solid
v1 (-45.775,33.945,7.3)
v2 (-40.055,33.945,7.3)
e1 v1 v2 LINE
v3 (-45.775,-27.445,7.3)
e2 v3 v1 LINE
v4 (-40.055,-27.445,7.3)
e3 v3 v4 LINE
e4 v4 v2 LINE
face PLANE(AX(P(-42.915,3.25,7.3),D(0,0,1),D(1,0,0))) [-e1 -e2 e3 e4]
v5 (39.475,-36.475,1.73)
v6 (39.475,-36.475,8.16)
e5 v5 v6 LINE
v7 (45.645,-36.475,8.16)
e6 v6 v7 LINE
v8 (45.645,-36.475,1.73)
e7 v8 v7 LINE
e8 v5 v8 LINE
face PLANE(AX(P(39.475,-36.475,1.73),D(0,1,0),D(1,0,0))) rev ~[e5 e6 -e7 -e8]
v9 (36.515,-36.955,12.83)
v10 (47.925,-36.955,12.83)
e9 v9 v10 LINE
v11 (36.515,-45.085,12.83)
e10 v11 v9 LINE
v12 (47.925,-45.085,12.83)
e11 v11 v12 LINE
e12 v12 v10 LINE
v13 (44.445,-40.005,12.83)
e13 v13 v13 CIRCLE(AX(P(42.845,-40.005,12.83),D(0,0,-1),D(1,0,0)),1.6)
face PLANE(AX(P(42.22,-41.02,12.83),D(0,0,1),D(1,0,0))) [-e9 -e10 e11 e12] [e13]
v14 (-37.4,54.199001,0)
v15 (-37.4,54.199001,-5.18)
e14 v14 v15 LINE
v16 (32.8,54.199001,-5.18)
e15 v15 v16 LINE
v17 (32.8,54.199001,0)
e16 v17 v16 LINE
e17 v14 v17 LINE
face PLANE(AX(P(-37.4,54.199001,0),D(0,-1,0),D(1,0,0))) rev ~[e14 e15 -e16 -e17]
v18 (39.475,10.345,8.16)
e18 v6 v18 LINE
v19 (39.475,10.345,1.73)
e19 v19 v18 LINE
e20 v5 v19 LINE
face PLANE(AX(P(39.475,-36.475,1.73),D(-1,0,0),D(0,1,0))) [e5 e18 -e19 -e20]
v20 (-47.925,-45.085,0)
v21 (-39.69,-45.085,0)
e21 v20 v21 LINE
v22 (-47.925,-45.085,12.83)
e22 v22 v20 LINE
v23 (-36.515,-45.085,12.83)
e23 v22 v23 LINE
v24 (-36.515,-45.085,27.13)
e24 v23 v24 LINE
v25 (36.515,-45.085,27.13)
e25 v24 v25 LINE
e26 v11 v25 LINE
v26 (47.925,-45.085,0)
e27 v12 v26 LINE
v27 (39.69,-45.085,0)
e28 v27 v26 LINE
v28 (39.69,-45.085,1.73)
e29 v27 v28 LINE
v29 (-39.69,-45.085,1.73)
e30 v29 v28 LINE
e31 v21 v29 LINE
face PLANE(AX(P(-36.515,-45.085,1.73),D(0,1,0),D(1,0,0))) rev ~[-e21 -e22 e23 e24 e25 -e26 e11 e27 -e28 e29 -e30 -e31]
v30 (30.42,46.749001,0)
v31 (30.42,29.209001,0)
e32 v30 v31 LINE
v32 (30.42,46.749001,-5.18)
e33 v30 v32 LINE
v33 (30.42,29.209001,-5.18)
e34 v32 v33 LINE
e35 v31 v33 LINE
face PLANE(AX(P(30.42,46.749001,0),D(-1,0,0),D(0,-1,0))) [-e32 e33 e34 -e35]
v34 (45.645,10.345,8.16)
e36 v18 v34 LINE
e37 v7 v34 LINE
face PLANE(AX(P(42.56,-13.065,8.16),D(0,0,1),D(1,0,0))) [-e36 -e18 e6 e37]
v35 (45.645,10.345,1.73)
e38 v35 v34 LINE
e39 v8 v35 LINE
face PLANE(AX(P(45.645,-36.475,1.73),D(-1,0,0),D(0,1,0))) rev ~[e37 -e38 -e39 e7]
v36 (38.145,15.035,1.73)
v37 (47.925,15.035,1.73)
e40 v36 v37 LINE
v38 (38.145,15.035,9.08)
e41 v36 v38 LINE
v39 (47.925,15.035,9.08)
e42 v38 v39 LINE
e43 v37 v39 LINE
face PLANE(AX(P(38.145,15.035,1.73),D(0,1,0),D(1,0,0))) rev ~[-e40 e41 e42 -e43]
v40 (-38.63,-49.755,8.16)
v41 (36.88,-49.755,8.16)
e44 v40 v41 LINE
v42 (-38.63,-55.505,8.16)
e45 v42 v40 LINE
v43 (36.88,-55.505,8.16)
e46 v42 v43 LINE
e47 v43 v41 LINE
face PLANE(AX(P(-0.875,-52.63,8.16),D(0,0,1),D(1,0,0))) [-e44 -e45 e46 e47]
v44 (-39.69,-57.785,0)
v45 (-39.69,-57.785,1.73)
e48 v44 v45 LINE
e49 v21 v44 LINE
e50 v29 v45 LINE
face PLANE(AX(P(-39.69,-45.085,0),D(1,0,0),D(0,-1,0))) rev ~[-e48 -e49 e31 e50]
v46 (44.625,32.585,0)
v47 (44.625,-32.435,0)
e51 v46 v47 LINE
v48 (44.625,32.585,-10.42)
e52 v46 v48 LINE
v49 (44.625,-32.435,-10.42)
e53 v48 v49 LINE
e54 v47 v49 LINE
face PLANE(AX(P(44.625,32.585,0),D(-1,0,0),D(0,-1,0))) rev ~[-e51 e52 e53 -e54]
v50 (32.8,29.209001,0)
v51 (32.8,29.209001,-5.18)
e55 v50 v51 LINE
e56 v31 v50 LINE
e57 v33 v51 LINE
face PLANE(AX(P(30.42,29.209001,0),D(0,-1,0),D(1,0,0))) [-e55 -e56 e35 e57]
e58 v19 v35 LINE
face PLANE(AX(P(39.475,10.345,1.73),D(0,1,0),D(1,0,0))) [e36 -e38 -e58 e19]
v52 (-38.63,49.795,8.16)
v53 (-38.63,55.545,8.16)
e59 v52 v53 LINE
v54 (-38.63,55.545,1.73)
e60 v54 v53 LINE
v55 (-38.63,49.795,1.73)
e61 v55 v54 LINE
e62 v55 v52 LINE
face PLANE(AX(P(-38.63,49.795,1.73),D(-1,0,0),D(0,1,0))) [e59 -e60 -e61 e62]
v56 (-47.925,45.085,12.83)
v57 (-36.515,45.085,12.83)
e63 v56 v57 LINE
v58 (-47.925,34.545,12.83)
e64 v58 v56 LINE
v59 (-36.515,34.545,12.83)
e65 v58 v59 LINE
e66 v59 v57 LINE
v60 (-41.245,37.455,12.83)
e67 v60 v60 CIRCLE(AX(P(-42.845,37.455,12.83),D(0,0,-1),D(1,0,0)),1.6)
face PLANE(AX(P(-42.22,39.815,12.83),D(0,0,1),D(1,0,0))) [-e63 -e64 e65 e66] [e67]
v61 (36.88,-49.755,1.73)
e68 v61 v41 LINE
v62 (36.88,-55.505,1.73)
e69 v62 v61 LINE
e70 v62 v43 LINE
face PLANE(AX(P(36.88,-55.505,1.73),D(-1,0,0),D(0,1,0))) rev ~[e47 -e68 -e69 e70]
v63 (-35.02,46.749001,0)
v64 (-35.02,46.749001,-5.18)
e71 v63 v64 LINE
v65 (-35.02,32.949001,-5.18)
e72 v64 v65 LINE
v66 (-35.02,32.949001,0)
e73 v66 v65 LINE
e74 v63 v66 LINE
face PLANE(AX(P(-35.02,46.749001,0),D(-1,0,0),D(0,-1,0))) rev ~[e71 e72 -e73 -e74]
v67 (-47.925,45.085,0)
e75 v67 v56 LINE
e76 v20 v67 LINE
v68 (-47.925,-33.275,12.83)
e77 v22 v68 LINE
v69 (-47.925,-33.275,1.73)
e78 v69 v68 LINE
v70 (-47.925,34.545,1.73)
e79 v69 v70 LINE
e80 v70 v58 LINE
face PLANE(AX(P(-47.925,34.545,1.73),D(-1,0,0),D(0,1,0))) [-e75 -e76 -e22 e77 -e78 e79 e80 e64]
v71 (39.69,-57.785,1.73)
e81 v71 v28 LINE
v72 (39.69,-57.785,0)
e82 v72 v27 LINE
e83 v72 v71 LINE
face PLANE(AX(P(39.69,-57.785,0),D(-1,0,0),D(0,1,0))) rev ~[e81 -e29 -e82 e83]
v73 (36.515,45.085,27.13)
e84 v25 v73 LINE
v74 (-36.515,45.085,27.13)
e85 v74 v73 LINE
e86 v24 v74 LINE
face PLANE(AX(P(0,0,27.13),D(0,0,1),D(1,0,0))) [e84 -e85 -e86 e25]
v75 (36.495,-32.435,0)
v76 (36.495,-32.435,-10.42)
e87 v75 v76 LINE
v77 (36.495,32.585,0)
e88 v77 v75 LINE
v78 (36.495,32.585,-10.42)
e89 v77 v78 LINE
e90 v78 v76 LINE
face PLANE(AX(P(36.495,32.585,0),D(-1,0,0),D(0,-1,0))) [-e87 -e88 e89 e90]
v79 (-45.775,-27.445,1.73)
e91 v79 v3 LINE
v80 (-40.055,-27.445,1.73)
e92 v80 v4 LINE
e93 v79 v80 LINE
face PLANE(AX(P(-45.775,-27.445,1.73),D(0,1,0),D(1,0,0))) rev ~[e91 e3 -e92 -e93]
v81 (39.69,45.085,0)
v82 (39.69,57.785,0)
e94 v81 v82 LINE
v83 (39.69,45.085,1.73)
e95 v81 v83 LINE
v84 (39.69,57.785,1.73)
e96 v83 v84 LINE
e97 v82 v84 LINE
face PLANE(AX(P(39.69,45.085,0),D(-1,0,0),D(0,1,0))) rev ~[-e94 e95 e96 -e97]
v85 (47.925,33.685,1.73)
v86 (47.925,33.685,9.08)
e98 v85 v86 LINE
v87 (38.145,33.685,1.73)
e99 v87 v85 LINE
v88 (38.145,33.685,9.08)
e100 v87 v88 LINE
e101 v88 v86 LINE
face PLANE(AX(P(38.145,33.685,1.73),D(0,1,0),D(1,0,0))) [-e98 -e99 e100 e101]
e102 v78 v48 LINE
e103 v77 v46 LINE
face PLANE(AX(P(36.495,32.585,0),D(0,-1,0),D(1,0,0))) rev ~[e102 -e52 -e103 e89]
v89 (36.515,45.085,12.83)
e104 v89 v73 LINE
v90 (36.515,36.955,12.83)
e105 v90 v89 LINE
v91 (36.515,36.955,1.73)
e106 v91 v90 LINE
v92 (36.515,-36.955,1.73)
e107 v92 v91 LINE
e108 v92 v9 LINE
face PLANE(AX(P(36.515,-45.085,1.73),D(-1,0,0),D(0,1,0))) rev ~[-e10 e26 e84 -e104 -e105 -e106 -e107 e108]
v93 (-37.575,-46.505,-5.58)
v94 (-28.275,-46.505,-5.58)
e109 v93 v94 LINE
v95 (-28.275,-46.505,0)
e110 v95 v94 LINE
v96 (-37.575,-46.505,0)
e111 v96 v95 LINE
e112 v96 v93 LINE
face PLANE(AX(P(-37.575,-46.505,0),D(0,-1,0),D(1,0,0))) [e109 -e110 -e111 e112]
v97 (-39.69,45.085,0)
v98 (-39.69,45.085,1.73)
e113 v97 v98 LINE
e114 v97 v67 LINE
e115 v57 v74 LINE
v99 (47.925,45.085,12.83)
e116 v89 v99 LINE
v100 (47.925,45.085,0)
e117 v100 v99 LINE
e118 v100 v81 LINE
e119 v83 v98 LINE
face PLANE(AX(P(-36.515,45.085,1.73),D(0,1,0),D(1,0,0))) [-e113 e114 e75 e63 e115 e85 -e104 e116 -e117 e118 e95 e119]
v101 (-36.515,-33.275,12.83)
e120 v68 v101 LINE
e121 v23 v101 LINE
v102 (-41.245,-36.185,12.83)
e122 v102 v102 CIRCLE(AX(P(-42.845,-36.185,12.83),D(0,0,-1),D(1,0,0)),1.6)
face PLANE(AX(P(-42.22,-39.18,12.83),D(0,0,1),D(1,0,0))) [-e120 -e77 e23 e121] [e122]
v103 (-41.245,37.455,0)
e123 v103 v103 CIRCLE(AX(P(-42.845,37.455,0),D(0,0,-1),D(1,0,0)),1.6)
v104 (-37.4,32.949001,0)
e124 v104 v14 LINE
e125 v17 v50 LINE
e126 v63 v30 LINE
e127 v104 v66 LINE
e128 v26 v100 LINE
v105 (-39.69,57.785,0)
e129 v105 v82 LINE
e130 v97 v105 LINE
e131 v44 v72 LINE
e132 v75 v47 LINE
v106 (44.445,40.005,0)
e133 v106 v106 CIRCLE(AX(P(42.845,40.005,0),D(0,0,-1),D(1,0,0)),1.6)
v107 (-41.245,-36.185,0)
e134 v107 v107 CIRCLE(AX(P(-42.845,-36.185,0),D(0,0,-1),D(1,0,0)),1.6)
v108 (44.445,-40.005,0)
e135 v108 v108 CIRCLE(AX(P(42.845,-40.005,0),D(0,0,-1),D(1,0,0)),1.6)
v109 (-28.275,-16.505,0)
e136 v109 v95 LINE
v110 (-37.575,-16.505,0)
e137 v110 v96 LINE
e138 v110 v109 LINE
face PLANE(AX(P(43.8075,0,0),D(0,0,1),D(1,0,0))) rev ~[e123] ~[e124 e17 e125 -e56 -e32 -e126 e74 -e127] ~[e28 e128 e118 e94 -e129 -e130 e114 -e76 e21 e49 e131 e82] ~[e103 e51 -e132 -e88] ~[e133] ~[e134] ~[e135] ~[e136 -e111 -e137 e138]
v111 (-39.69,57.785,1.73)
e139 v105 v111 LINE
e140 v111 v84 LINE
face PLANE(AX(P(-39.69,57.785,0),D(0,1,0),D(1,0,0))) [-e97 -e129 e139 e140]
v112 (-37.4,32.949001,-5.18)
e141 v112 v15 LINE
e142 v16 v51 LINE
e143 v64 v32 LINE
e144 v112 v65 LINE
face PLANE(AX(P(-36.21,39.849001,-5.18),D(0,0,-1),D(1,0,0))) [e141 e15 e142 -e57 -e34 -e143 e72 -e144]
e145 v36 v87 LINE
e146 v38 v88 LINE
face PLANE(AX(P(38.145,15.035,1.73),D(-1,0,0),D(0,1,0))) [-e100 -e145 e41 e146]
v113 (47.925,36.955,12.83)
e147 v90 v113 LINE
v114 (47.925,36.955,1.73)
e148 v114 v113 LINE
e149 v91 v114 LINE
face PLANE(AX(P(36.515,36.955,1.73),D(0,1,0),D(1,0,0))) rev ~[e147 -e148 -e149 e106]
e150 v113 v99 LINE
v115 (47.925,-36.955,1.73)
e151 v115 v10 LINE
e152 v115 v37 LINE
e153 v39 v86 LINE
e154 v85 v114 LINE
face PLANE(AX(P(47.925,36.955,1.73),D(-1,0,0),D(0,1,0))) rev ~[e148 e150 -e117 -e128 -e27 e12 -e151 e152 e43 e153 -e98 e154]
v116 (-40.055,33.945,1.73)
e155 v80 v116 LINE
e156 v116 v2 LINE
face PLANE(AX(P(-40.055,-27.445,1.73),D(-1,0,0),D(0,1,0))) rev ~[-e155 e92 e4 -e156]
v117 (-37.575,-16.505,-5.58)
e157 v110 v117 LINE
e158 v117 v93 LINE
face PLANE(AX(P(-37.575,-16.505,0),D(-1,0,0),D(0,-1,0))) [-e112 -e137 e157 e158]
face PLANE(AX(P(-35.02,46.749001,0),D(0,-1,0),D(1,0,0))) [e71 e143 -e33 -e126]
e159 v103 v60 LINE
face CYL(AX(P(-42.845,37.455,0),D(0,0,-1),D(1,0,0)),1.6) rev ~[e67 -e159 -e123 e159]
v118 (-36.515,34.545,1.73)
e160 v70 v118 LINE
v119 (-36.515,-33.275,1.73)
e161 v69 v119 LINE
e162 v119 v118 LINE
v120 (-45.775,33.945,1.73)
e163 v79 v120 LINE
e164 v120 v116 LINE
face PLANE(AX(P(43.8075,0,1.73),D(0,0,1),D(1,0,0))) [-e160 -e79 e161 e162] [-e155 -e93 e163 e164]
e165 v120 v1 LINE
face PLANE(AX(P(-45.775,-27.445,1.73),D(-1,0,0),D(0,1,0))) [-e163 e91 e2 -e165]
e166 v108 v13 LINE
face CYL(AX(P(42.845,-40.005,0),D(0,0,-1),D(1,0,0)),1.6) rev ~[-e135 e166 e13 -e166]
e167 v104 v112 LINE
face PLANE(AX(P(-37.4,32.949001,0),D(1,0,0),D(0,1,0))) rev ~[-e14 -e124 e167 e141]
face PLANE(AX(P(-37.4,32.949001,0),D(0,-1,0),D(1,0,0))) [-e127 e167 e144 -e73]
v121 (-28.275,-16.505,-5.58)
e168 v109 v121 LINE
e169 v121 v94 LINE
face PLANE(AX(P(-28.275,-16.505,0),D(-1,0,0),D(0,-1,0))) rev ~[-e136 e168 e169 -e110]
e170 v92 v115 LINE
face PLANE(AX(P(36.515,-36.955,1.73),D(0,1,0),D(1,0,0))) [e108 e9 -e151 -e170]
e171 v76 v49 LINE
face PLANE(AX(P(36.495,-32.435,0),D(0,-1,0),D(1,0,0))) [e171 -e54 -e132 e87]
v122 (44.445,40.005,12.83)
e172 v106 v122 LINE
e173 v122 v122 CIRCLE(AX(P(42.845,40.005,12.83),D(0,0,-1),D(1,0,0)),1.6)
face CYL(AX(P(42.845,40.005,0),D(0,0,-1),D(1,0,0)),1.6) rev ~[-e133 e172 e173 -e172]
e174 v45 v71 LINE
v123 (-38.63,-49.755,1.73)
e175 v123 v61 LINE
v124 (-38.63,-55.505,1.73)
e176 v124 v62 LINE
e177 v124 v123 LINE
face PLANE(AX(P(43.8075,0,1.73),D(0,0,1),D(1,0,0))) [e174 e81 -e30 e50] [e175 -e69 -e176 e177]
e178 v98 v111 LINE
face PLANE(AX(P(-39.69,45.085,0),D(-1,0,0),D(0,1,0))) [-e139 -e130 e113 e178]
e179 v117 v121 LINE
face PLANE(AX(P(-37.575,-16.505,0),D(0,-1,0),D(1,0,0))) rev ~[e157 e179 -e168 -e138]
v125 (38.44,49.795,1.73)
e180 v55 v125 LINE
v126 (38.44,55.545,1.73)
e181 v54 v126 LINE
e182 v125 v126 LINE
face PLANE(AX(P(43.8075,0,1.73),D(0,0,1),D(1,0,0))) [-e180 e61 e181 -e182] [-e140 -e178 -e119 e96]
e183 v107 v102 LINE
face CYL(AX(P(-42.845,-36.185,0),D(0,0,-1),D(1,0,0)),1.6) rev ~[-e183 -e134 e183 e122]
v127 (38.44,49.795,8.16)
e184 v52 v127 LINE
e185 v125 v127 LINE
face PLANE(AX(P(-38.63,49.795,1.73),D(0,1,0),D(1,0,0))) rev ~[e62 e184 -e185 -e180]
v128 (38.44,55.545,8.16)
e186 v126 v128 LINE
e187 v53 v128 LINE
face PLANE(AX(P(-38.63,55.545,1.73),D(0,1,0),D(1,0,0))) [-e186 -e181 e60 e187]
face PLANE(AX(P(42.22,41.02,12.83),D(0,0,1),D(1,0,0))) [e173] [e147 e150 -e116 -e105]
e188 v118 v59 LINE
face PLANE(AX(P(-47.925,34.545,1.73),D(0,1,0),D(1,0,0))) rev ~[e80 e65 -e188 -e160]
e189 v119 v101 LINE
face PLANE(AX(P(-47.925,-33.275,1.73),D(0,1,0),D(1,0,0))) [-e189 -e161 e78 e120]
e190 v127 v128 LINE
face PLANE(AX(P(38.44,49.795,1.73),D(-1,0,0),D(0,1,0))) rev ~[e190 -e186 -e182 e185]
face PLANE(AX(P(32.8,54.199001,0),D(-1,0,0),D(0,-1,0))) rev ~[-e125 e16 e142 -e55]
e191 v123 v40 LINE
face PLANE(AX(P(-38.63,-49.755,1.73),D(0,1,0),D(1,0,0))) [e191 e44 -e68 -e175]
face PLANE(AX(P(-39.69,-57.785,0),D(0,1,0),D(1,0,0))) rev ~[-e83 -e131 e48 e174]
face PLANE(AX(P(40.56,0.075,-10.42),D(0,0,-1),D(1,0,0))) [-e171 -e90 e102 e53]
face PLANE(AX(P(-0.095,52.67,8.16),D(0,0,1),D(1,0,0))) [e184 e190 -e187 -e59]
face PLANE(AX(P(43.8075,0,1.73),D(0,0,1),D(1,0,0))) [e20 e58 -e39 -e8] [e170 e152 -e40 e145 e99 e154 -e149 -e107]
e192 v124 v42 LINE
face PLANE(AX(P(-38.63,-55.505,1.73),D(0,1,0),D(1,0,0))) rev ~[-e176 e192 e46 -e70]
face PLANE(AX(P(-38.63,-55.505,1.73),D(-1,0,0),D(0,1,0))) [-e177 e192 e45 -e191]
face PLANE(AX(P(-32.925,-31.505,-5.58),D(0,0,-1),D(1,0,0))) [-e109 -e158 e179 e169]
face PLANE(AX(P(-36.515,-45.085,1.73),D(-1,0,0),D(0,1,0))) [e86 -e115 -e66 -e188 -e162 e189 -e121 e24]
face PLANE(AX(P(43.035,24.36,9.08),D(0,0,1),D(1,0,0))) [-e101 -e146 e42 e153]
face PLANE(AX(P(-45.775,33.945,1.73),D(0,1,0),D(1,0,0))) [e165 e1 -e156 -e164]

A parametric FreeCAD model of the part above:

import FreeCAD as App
import Part
import Sketcher

V = App.Vector
Q = App.Units.Quantity

doc = App.newDocument("Part")
body = doc.addObject("PartDesign::Body", "Body")

# Sketch on XY plane
sketch1 = body.newObject("Sketcher::SketchObject", "Sketch")
sketch1.AttachmentSupport = (doc.getObject("XY_Plane"), [""])
sketch1.MapMode = "FlatFace"
sketch1.addGeometry(Part.LineSegment(V(40, -45, 0), V(48, -45, 0)), False)
sketch1.addGeometry(Part.LineSegment(V(48, -45, 0), V(48, 45, 0)), False)
sketch1.addGeometry(Part.LineSegment(V(48, 45, 0), V(40, 45, 0)), False)
sketch1.addGeometry(Part.LineSegment(V(40, 45, 0), V(40, 58, 0)), False)
sketch1.addGeometry(Part.LineSegment(V(40, 58, 0), V(-40, 58, 0)), False)
sketch1.addGeometry(Part.LineSegment(V(-40, 58, 0), V(-40, 45, 0)), False)
sketch1.addGeometry(Part.LineSegment(V(-40, 45, 0), V(-48, 45, 0)), False)
sketch1.addGeometry(Part.LineSegment(V(-48, 45, 0), V(-48, -45, 0)), False)
sketch1.addGeometry(Part.LineSegment(V(-48, -45, 0), V(-40, -45, 0)), False)
sketch1.addGeometry(Part.LineSegment(V(-40, -45, 0), V(-40, -58, 0)), False)
sketch1.addGeometry(Part.LineSegment(V(-40, -58, 0), V(40, -58, 0)), False)
sketch1.addGeometry(Part.LineSegment(V(40, -58, 0), V(40, -45, 0)), False)
sketch1.addConstraint(Sketcher.Constraint("Coincident", 0, 2, 1, 1))
sketch1.addConstraint(Sketcher.Constraint("Coincident", 1, 2, 2, 1))
sketch1.addConstraint(Sketcher.Constraint("Coincident", 2, 2, 3, 1))
sketch1.addConstraint(Sketcher.Constraint("Coincident", 3, 2, 4, 1))
sketch1.addConstraint(Sketcher.Constraint("Coincident", 4, 2, 5, 1))
sketch1.addConstraint(Sketcher.Constraint("Coincident", 5, 2, 6, 1))
sketch1.addConstraint(Sketcher.Constraint("Coincident", 6, 2, 7, 1))
sketch1.addConstraint(Sketcher.Constraint("Coincident", 7, 2, 8, 1))
sketch1.addConstraint(Sketcher.Constraint("Coincident", 8, 2, 9, 1))
sketch1.addConstraint(Sketcher.Constraint("Coincident", 9, 2, 10, 1))
sketch1.addConstraint(Sketcher.Constraint("Coincident", 10, 2, 11, 1))
sketch1.addConstraint(Sketcher.Constraint("Coincident", 11, 2, 0, 1))
sketch1.addConstraint(Sketcher.Constraint("Horizontal", 0))
sketch1.addConstraint(Sketcher.Constraint("Vertical", 1))
sketch1.addConstraint(Sketcher.Constraint("Horizontal", 2))
sketch1.addConstraint(Sketcher.Constraint("Vertical", 3))
sketch1.addConstraint(Sketcher.Constraint("Horizontal", 4))
sketch1.addConstraint(Sketcher.Constraint("Vertical", 5))
sketch1.addConstraint(Sketcher.Constraint("Horizontal", 6))
sketch1.addConstraint(Sketcher.Constraint("Vertical", 7))
sketch1.addConstraint(Sketcher.Constraint("Horizontal", 8))
sketch1.addConstraint(Sketcher.Constraint("Vertical", 9))
sketch1.addConstraint(Sketcher.Constraint("Horizontal", 10))
sketch1.addConstraint(Sketcher.Constraint("Vertical", 11))
sketch1.addConstraint(Sketcher.Constraint("Symmetric", 0, 2, 6, 2, -1, 1))
sketch1.addConstraint(Sketcher.Constraint("Symmetric", 2, 2, 8, 2, -1, 1))
sketch1.addConstraint(Sketcher.Constraint("Symmetric", 4, 2, 10, 2, -1, 1))
sketch1.addConstraint(Sketcher.Constraint("Symmetric", 2, 2, 5, 2, -2))
sketch1.addConstraint(Sketcher.Constraint("DistanceY", 3, 1, 3, 2, Q("12.7 mm")))
sketch1.addConstraint(Sketcher.Constraint("DistanceX", 4, 2, 4, 1, Q("79.38 mm")))
sketch1.addConstraint(Sketcher.Constraint("DistanceY", 1, 1, 1, 2, Q("90.17 mm")))
sketch1.addConstraint(Sketcher.Constraint("DistanceX", 0, 1, 0, 2, Q("8.235 mm")))
pad1 = body.newObject("PartDesign::Pad", "Pad")
pad1.Profile = sketch1
pad1.Length = 1.73

# Sketch on XY plane
sketch2 = body.newObject("Sketcher::SketchObject", "Sketch001")
sketch2.AttachmentSupport = (doc.getObject("XY_Plane"), [""])
sketch2.MapMode = "FlatFace"
sketch2.addGeometry(Part.LineSegment(V(36, -32, 0), V(36, 33, 0)), False)
sketch2.addGeometry(Part.LineSegment(V(36, 33, 0), V(45, 33, 0)), False)
sketch2.addGeometry(Part.LineSegment(V(45, 33, 0), V(45, -32, 0)), False)
sketch2.addGeometry(Part.LineSegment(V(45, -32, 0), V(36, -32, 0)), False)
sketch2.addConstraint(Sketcher.Constraint("Coincident", 0, 2, 1, 1))
sketch2.addConstraint(Sketcher.Constraint("Coincident", 1, 2, 2, 1))
sketch2.addConstraint(Sketcher.Constraint("Coincident", 2, 2, 3, 1))
sketch2.addConstraint(Sketcher.Constraint("Coincident", 3, 2, 0, 1))
sketch2.addConstraint(Sketcher.Constraint("Vertical", 0))
sketch2.addConstraint(Sketcher.Constraint("Horizontal", 1))
sketch2.addConstraint(Sketcher.Constraint("Vertical", 2))
sketch2.addConstraint(Sketcher.Constraint("Horizontal", 3))
sketch2.addConstraint(Sketcher.Constraint("DistanceX", 1, 1, 1, 2, Q("8.13 mm")))
sketch2.addConstraint(Sketcher.Constraint("DistanceY", 0, 1, 0, 2, Q("65.02 mm")))
sketch2.addConstraint(Sketcher.Constraint("DistanceX", -1, 1, 0, 2, Q("36.495 mm")))
sketch2.addConstraint(Sketcher.Constraint("DistanceY", -1, 1, 0, 2, Q("32.585 mm")))
pad2 = body.newObject("PartDesign::Pad", "Pad001")
pad2.Profile = sketch2
pad2.Length = 10.42
pad2.Reversed = True

# Sketch on XY plane
sketch3 = body.newObject("Sketcher::SketchObject", "Sketch002")
sketch3.AttachmentSupport = (doc.getObject("XY_Plane"), [""])
sketch3.MapMode = "FlatFace"
sketch3.addGeometry(Part.LineSegment(V(-37.4, 32.9, 0), V(-37.4, 54.2, 0)), False)
sketch3.addGeometry(Part.LineSegment(V(-37.4, 54.2, 0), V(32.8, 54.2, 0)), False)
sketch3.addGeometry(Part.LineSegment(V(32.8, 54.2, 0), V(32.8, 29.2, 0)), False)
sketch3.addGeometry(Part.LineSegment(V(32.8, 29.2, 0), V(30.4, 29.2, 0)), False)
sketch3.addGeometry(Part.LineSegment(V(30.4, 29.2, 0), V(30.4, 46.7, 0)), False)
sketch3.addGeometry(Part.LineSegment(V(30.4, 46.7, 0), V(-35, 46.7, 0)), False)
sketch3.addGeometry(Part.LineSegment(V(-35, 46.7, 0), V(-35, 32.9, 0)), False)
sketch3.addGeometry(Part.LineSegment(V(-35, 32.9, 0), V(-37.4, 32.9, 0)), False)
sketch3.addConstraint(Sketcher.Constraint("Coincident", 0, 2, 1, 1))
sketch3.addConstraint(Sketcher.Constraint("Coincident", 1, 2, 2, 1))
sketch3.addConstraint(Sketcher.Constraint("Coincident", 2, 2, 3, 1))
sketch3.addConstraint(Sketcher.Constraint("Coincident", 3, 2, 4, 1))
sketch3.addConstraint(Sketcher.Constraint("Coincident", 4, 2, 5, 1))
sketch3.addConstraint(Sketcher.Constraint("Coincident", 5, 2, 6, 1))
sketch3.addConstraint(Sketcher.Constraint("Coincident", 6, 2, 7, 1))
sketch3.addConstraint(Sketcher.Constraint("Coincident", 7, 2, 0, 1))
sketch3.addConstraint(Sketcher.Constraint("Vertical", 0))
sketch3.addConstraint(Sketcher.Constraint("Horizontal", 1))
sketch3.addConstraint(Sketcher.Constraint("Vertical", 2))
sketch3.addConstraint(Sketcher.Constraint("Horizontal", 3))
sketch3.addConstraint(Sketcher.Constraint("Vertical", 4))
sketch3.addConstraint(Sketcher.Constraint("Horizontal", 5))
sketch3.addConstraint(Sketcher.Constraint("Vertical", 6))
sketch3.addConstraint(Sketcher.Constraint("Horizontal", 7))
sketch3.addConstraint(Sketcher.Constraint("Equal", 3, 7))
sketch3.addConstraint(Sketcher.Constraint("DistanceX", 1, 1, 1, 2, Q("70.2 mm")))
sketch3.addConstraint(Sketcher.Constraint("DistanceY", 6, 2, 6, 1, Q("13.8 mm")))
sketch3.addConstraint(Sketcher.Constraint("DistanceX", 3, 2, 3, 1, Q("2.38 mm")))
sketch3.addConstraint(Sketcher.Constraint("DistanceY", 0, 1, 0, 2, Q("21.25 mm")))
sketch3.addConstraint(Sketcher.Constraint("DistanceY", 2, 2, 2, 1, Q("24.99 mm")))
sketch3.addConstraint(Sketcher.Constraint("DistanceX", 0, 2, -1, 1, Q("37.4 mm")))
sketch3.addConstraint(Sketcher.Constraint("DistanceY", -1, 1, 0, 2, Q("54.199001 mm")))
pad3 = body.newObject("PartDesign::Pad", "Pad002")
pad3.Profile = sketch3
pad3.Length = 5.18
pad3.Reversed = True

# Sketch on XY plane
sketch4 = body.newObject("Sketcher::SketchObject", "Sketch003")
sketch4.AttachmentSupport = (doc.getObject("XY_Plane"), [""])
sketch4.MapMode = "FlatFace"
sketch4.addGeometry(Part.LineSegment(V(-38, -47, 0), V(-38, -17, 0)), False)
sketch4.addGeometry(Part.LineSegment(V(-38, -17, 0), V(-28, -17, 0)), False)
sketch4.addGeometry(Part.LineSegment(V(-28, -17, 0), V(-28, -47, 0)), False)
sketch4.addGeometry(Part.LineSegment(V(-28, -47, 0), V(-38, -47, 0)), False)
sketch4.addConstraint(Sketcher.Constraint("Coincident", 0, 2, 1, 1))
sketch4.addConstraint(Sketcher.Constraint("Coincident", 1, 2, 2, 1))
sketch4.addConstraint(Sketcher.Constraint("Coincident", 2, 2, 3, 1))
sketch4.addConstraint(Sketcher.Constraint("Coincident", 3, 2, 0, 1))
sketch4.addConstraint(Sketcher.Constraint("Vertical", 0))
sketch4.addConstraint(Sketcher.Constraint("Horizontal", 1))
sketch4.addConstraint(Sketcher.Constraint("Vertical", 2))
sketch4.addConstraint(Sketcher.Constraint("Horizontal", 3))
sketch4.addConstraint(Sketcher.Constraint("DistanceY", 0, 1, 0, 2, Q("30 mm")))
sketch4.addConstraint(Sketcher.Constraint("DistanceX", 1, 1, 1, 2, Q("9.3 mm")))
sketch4.addConstraint(Sketcher.Constraint("DistanceX", 0, 2, -1, 1, Q("37.575 mm")))
sketch4.addConstraint(Sketcher.Constraint("DistanceY", 0, 2, -1, 1, Q("16.505 mm")))
pad4 = body.newObject("PartDesign::Pad", "Pad003")
pad4.Profile = sketch4
pad4.Length = 5.58
pad4.Reversed = True

# Sketch on XY plane
sketch5 = body.newObject("Sketcher::SketchObject", "Sketch004")
sketch5.AttachmentSupport = (doc.getObject("XY_Plane"), [""])
sketch5.MapMode = "FlatFace"
sketch5.AttachmentOffset = App.Placement(V(0, 0, 1.73), App.Rotation())
sketch5.addGeometry(Part.LineSegment(V(-37, 45, 0), V(-37, -45, 0)), False)
sketch5.addGeometry(Part.LineSegment(V(-37, -45, 0), V(37, -45, 0)), False)
sketch5.addGeometry(Part.LineSegment(V(37, -45, 0), V(37, 45, 0)), False)
sketch5.addGeometry(Part.LineSegment(V(37, 45, 0), V(-37, 45, 0)), False)
sketch5.addConstraint(Sketcher.Constraint("Coincident", 0, 2, 1, 1))
sketch5.addConstraint(Sketcher.Constraint("Coincident", 1, 2, 2, 1))
sketch5.addConstraint(Sketcher.Constraint("Coincident", 2, 2, 3, 1))
sketch5.addConstraint(Sketcher.Constraint("Coincident", 3, 2, 0, 1))
sketch5.addConstraint(Sketcher.Constraint("Vertical", 0))
sketch5.addConstraint(Sketcher.Constraint("Horizontal", 1))
sketch5.addConstraint(Sketcher.Constraint("Vertical", 2))
sketch5.addConstraint(Sketcher.Constraint("Horizontal", 3))
sketch5.addConstraint(Sketcher.Constraint("Symmetric", 0, 2, 2, 2, -1, 1))
sketch5.addConstraint(Sketcher.Constraint("DistanceX", 1, 1, 1, 2, Q("73.03 mm")))
sketch5.addConstraint(Sketcher.Constraint("DistanceY", 0, 2, 0, 1, Q("90.17 mm")))
pad5 = body.newObject("PartDesign::Pad", "Pad004")
pad5.Profile = sketch5
pad5.Length = 25.4

# Sketch on XY plane
sketch6 = body.newObject("Sketcher::SketchObject", "Sketch005")
sketch6.AttachmentSupport = (doc.getObject("XY_Plane"), [""])
sketch6.MapMode = "FlatFace"
sketch6.AttachmentOffset = App.Placement(V(0, 0, 1.73), App.Rotation())
sketch6.addGeometry(Part.LineSegment(V(37, 45, 0), V(37, 37, 0)), False)
sketch6.addGeometry(Part.LineSegment(V(37, 37, 0), V(48, 37, 0)), False)
sketch6.addGeometry(Part.LineSegment(V(48, 37, 0), V(48, 45, 0)), False)
sketch6.addGeometry(Part.LineSegment(V(48, 45, 0), V(37, 45, 0)), False)
sketch6.addGeometry(Part.LineSegment(V(37, -37, 0), V(37, -45, 0)), False)
sketch6.addGeometry(Part.LineSegment(V(37, -45, 0), V(48, -45, 0)), False)
sketch6.addGeometry(Part.LineSegment(V(48, -45, 0), V(48, -37, 0)), False)
sketch6.addGeometry(Part.LineSegment(V(48, -37, 0), V(37, -37, 0)), False)
sketch6.addGeometry(Part.LineSegment(V(-48, 45, 0), V(-48, 35, 0)), False)
sketch6.addGeometry(Part.LineSegment(V(-48, 35, 0), V(-37, 35, 0)), False)
sketch6.addGeometry(Part.LineSegment(V(-37, 35, 0), V(-37, 45, 0)), False)
sketch6.addGeometry(Part.LineSegment(V(-37, 45, 0), V(-48, 45, 0)), False)
sketch6.addGeometry(Part.LineSegment(V(-48, -33, 0), V(-48, -45, 0)), False)
sketch6.addGeometry(Part.LineSegment(V(-48, -45, 0), V(-37, -45, 0)), False)
sketch6.addGeometry(Part.LineSegment(V(-37, -45, 0), V(-37, -33, 0)), False)
sketch6.addGeometry(Part.LineSegment(V(-37, -33, 0), V(-48, -33, 0)), False)
sketch6.addConstraint(Sketcher.Constraint("Coincident", 0, 2, 1, 1))
sketch6.addConstraint(Sketcher.Constraint("Coincident", 1, 2, 2, 1))
sketch6.addConstraint(Sketcher.Constraint("Coincident", 2, 2, 3, 1))
sketch6.addConstraint(Sketcher.Constraint("Coincident", 3, 2, 0, 1))
sketch6.addConstraint(Sketcher.Constraint("Coincident", 4, 2, 5, 1))
sketch6.addConstraint(Sketcher.Constraint("Coincident", 5, 2, 6, 1))
sketch6.addConstraint(Sketcher.Constraint("Coincident", 6, 2, 7, 1))
sketch6.addConstraint(Sketcher.Constraint("Coincident", 7, 2, 4, 1))
sketch6.addConstraint(Sketcher.Constraint("Coincident", 8, 2, 9, 1))
sketch6.addConstraint(Sketcher.Constraint("Coincident", 9, 2, 10, 1))
sketch6.addConstraint(Sketcher.Constraint("Coincident", 10, 2, 11, 1))
sketch6.addConstraint(Sketcher.Constraint("Coincident", 11, 2, 8, 1))
sketch6.addConstraint(Sketcher.Constraint("Coincident", 12, 2, 13, 1))
sketch6.addConstraint(Sketcher.Constraint("Coincident", 13, 2, 14, 1))
sketch6.addConstraint(Sketcher.Constraint("Coincident", 14, 2, 15, 1))
sketch6.addConstraint(Sketcher.Constraint("Coincident", 15, 2, 12, 1))
sketch6.addConstraint(Sketcher.Constraint("Vertical", 0))
sketch6.addConstraint(Sketcher.Constraint("Horizontal", 1))
sketch6.addConstraint(Sketcher.Constraint("Vertical", 2))
sketch6.addConstraint(Sketcher.Constraint("Horizontal", 3))
sketch6.addConstraint(Sketcher.Constraint("Vertical", 4))
sketch6.addConstraint(Sketcher.Constraint("Horizontal", 5))
sketch6.addConstraint(Sketcher.Constraint("Vertical", 6))
sketch6.addConstraint(Sketcher.Constraint("Horizontal", 7))
sketch6.addConstraint(Sketcher.Constraint("Vertical", 8))
sketch6.addConstraint(Sketcher.Constraint("Horizontal", 9))
sketch6.addConstraint(Sketcher.Constraint("Vertical", 10))
sketch6.addConstraint(Sketcher.Constraint("Horizontal", 11))
sketch6.addConstraint(Sketcher.Constraint("Vertical", 12))
sketch6.addConstraint(Sketcher.Constraint("Horizontal", 13))
sketch6.addConstraint(Sketcher.Constraint("Vertical", 14))
sketch6.addConstraint(Sketcher.Constraint("Horizontal", 15))
sketch6.addConstraint(Sketcher.Constraint("Symmetric", 4, 2, 10, 2, -1, 1))
sketch6.addConstraint(Sketcher.Constraint("Symmetric", 2, 2, 12, 2, -1, 1))
sketch6.addConstraint(Sketcher.Constraint("Symmetric", 3, 2, 10, 2, -2))
sketch6.addConstraint(Sketcher.Constraint("Symmetric", 1, 2, 6, 2, -1))
sketch6.addConstraint(Sketcher.Constraint("Vertical", 11, 2, 12, 2))
sketch6.addConstraint(Sketcher.Constraint("Vertical", 10, 2, 13, 2))
sketch6.addConstraint(Sketcher.Constraint("DistanceX", 1, 1, 1, 2, Q("11.41 mm")))
sketch6.addConstraint(Sketcher.Constraint("DistanceY", 0, 2, 0, 1, Q("8.13 mm")))
sketch6.addConstraint(Sketcher.Constraint("DistanceY", 8, 2, 8, 1, Q("10.54 mm")))
sketch6.addConstraint(Sketcher.Constraint("DistanceY", 12, 2, 12, 1, Q("11.81 mm")))
sketch6.addConstraint(Sketcher.Constraint("DistanceY", 7, 2, 8, 2, Q("71.5 mm")))
sketch6.addConstraint(Sketcher.Constraint("DistanceX", 8, 2, 0, 2, Q("84.44 mm")))
pad6 = body.newObject("PartDesign::Pad", "Pad005")
pad6.Profile = sketch6
pad6.Length = 11.1

# Sketch on XY plane
sketch7 = body.newObject("Sketcher::SketchObject", "Sketch006")
sketch7.AttachmentSupport = (doc.getObject("XY_Plane"), [""])
sketch7.MapMode = "FlatFace"
sketch7.AttachmentOffset = App.Placement(V(0, 0, 1.73), App.Rotation())
sketch7.addGeometry(Part.LineSegment(V(-39, -50, 0), V(-39, -56, 0)), False)
sketch7.addGeometry(Part.LineSegment(V(-39, -56, 0), V(37, -56, 0)), False)
sketch7.addGeometry(Part.LineSegment(V(37, -56, 0), V(37, -50, 0)), False)
sketch7.addGeometry(Part.LineSegment(V(37, -50, 0), V(-39, -50, 0)), False)
sketch7.addConstraint(Sketcher.Constraint("Coincident", 0, 2, 1, 1))
sketch7.addConstraint(Sketcher.Constraint("Coincident", 1, 2, 2, 1))
sketch7.addConstraint(Sketcher.Constraint("Coincident", 2, 2, 3, 1))
sketch7.addConstraint(Sketcher.Constraint("Coincident", 3, 2, 0, 1))
sketch7.addConstraint(Sketcher.Constraint("Vertical", 0))
sketch7.addConstraint(Sketcher.Constraint("Horizontal", 1))
sketch7.addConstraint(Sketcher.Constraint("Vertical", 2))
sketch7.addConstraint(Sketcher.Constraint("Horizontal", 3))
sketch7.addConstraint(Sketcher.Constraint("DistanceX", 1, 1, 1, 2, Q("75.51 mm")))
sketch7.addConstraint(Sketcher.Constraint("DistanceY", 0, 2, 0, 1, Q("5.75 mm")))
sketch7.addConstraint(Sketcher.Constraint("DistanceX", 0, 2, -1, 1, Q("38.63 mm")))
sketch7.addConstraint(Sketcher.Constraint("DistanceY", 0, 2, -1, 1, Q("55.505 mm")))
pad7 = body.newObject("PartDesign::Pad", "Pad006")
pad7.Profile = sketch7
pad7.Length = 6.43

# Sketch on XY plane
sketch8 = body.newObject("Sketcher::SketchObject", "Sketch007")
sketch8.AttachmentSupport = (doc.getObject("XY_Plane"), [""])
sketch8.MapMode = "FlatFace"
sketch8.AttachmentOffset = App.Placement(V(0, 0, 1.73), App.Rotation())
sketch8.addGeometry(Part.LineSegment(V(-46, 34, 0), V(-46, -27, 0)), False)
sketch8.addGeometry(Part.LineSegment(V(-46, -27, 0), V(-40, -27, 0)), False)
sketch8.addGeometry(Part.LineSegment(V(-40, -27, 0), V(-40, 34, 0)), False)
sketch8.addGeometry(Part.LineSegment(V(-40, 34, 0), V(-46, 34, 0)), False)
sketch8.addConstraint(Sketcher.Constraint("Coincident", 0, 2, 1, 1))
sketch8.addConstraint(Sketcher.Constraint("Coincident", 1, 2, 2, 1))
sketch8.addConstraint(Sketcher.Constraint("Coincident", 2, 2, 3, 1))
sketch8.addConstraint(Sketcher.Constraint("Coincident", 3, 2, 0, 1))
sketch8.addConstraint(Sketcher.Constraint("Vertical", 0))
sketch8.addConstraint(Sketcher.Constraint("Horizontal", 1))
sketch8.addConstraint(Sketcher.Constraint("Vertical", 2))
sketch8.addConstraint(Sketcher.Constraint("Horizontal", 3))
sketch8.addConstraint(Sketcher.Constraint("DistanceX", 1, 1, 1, 2, Q("5.72 mm")))
sketch8.addConstraint(Sketcher.Constraint("DistanceY", 0, 2, 0, 1, Q("61.39 mm")))
sketch8.addConstraint(Sketcher.Constraint("DistanceX", 0, 2, -1, 1, Q("45.775 mm")))
sketch8.addConstraint(Sketcher.Constraint("DistanceY", 0, 2, -1, 1, Q("27.445 mm")))
pad8 = body.newObject("PartDesign::Pad", "Pad007")
pad8.Profile = sketch8
pad8.Length = 5.57

# Sketch on XY plane
sketch9 = body.newObject("Sketcher::SketchObject", "Sketch008")
sketch9.AttachmentSupport = (doc.getObject("XY_Plane"), [""])
sketch9.MapMode = "FlatFace"
sketch9.AttachmentOffset = App.Placement(V(0, 0, 1.73), App.Rotation())
sketch9.addGeometry(Part.LineSegment(V(-39, 56, 0), V(-39, 50, 0)), False)
sketch9.addGeometry(Part.LineSegment(V(-39, 50, 0), V(38, 50, 0)), False)
sketch9.addGeometry(Part.LineSegment(V(38, 50, 0), V(38, 56, 0)), False)
sketch9.addGeometry(Part.LineSegment(V(38, 56, 0), V(-39, 56, 0)), False)
sketch9.addConstraint(Sketcher.Constraint("Coincident", 0, 2, 1, 1))
sketch9.addConstraint(Sketcher.Constraint("Coincident", 1, 2, 2, 1))
sketch9.addConstraint(Sketcher.Constraint("Coincident", 2, 2, 3, 1))
sketch9.addConstraint(Sketcher.Constraint("Coincident", 3, 2, 0, 1))
sketch9.addConstraint(Sketcher.Constraint("Vertical", 0))
sketch9.addConstraint(Sketcher.Constraint("Horizontal", 1))
sketch9.addConstraint(Sketcher.Constraint("Vertical", 2))
sketch9.addConstraint(Sketcher.Constraint("Horizontal", 3))
sketch9.addConstraint(Sketcher.Constraint("DistanceX", 1, 1, 1, 2, Q("77.07 mm")))
sketch9.addConstraint(Sketcher.Constraint("DistanceY", 0, 2, 0, 1, Q("5.75 mm")))
sketch9.addConstraint(Sketcher.Constraint("DistanceX", 0, 2, -1, 1, Q("38.63 mm")))
sketch9.addConstraint(Sketcher.Constraint("DistanceY", -1, 1, 0, 2, Q("49.795 mm")))
pad9 = body.newObject("PartDesign::Pad", "Pad008")
pad9.Profile = sketch9
pad9.Length = 6.43

# Sketch on XY plane
sketch10 = body.newObject("Sketcher::SketchObject", "Sketch009")
sketch10.AttachmentSupport = (doc.getObject("XY_Plane"), [""])
sketch10.MapMode = "FlatFace"
sketch10.AttachmentOffset = App.Placement(V(0, 0, 1.73), App.Rotation())
sketch10.addGeometry(Part.LineSegment(V(39, 10, 0), V(39, -36, 0)), False)
sketch10.addGeometry(Part.LineSegment(V(39, -36, 0), V(46, -36, 0)), False)
sketch10.addGeometry(Part.LineSegment(V(46, -36, 0), V(46, 10, 0)), False)
sketch10.addGeometry(Part.LineSegment(V(46, 10, 0), V(39, 10, 0)), False)
sketch10.addConstraint(Sketcher.Constraint("Coincident", 0, 2, 1, 1))
sketch10.addConstraint(Sketcher.Constraint("Coincident", 1, 2, 2, 1))
sketch10.addConstraint(Sketcher.Constraint("Coincident", 2, 2, 3, 1))
sketch10.addConstraint(Sketcher.Constraint("Coincident", 3, 2, 0, 1))
sketch10.addConstraint(Sketcher.Constraint("Vertical", 0))
sketch10.addConstraint(Sketcher.Constraint("Horizontal", 1))
sketch10.addConstraint(Sketcher.Constraint("Vertical", 2))
sketch10.addConstraint(Sketcher.Constraint("Horizontal", 3))
sketch10.addConstraint(Sketcher.Constraint("DistanceX", 1, 1, 1, 2, Q("6.17 mm")))
sketch10.addConstraint(Sketcher.Constraint("DistanceY", 0, 2, 0, 1, Q("46.82 mm")))
sketch10.addConstraint(Sketcher.Constraint("DistanceX", -1, 1, 0, 2, Q("39.475 mm")))
sketch10.addConstraint(Sketcher.Constraint("DistanceY", 0, 2, -1, 1, Q("36.475 mm")))
pad10 = body.newObject("PartDesign::Pad", "Pad009")
pad10.Profile = sketch10
pad10.Length = 6.43

# Sketch on XY plane
sketch11 = body.newObject("Sketcher::SketchObject", "Sketch010")
sketch11.AttachmentSupport = (doc.getObject("XY_Plane"), [""])
sketch11.MapMode = "FlatFace"
sketch11.AttachmentOffset = App.Placement(V(0, 0, 1.73), App.Rotation())
sketch11.addGeometry(Part.LineSegment(V(38, 34, 0), V(38, 15, 0)), False)
sketch11.addGeometry(Part.LineSegment(V(38, 15, 0), V(48, 15, 0)), False)
sketch11.addGeometry(Part.LineSegment(V(48, 15, 0), V(48, 34, 0)), False)
sketch11.addGeometry(Part.LineSegment(V(48, 34, 0), V(38, 34, 0)), False)
sketch11.addConstraint(Sketcher.Constraint("Coincident", 0, 2, 1, 1))
sketch11.addConstraint(Sketcher.Constraint("Coincident", 1, 2, 2, 1))
sketch11.addConstraint(Sketcher.Constraint("Coincident", 2, 2, 3, 1))
sketch11.addConstraint(Sketcher.Constraint("Coincident", 3, 2, 0, 1))
sketch11.addConstraint(Sketcher.Constraint("Vertical", 0))
sketch11.addConstraint(Sketcher.Constraint("Horizontal", 1))
sketch11.addConstraint(Sketcher.Constraint("Vertical", 2))
sketch11.addConstraint(Sketcher.Constraint("Horizontal", 3))
sketch11.addConstraint(Sketcher.Constraint("DistanceX", 1, 1, 1, 2, Q("9.78 mm")))
sketch11.addConstraint(Sketcher.Constraint("DistanceY", 0, 2, 0, 1, Q("18.65 mm")))
sketch11.addConstraint(Sketcher.Constraint("DistanceX", -1, 1, 0, 2, Q("38.145 mm")))
sketch11.addConstraint(Sketcher.Constraint("DistanceY", -1, 1, 0, 2, Q("15.035 mm")))
pad11 = body.newObject("PartDesign::Pad", "Pad010")
pad11.Profile = sketch11
pad11.Length = 7.35

# Sketch on XY plane
sketch12 = body.newObject("Sketcher::SketchObject", "Sketch011")
sketch12.AttachmentSupport = (doc.getObject("XY_Plane"), [""])
sketch12.MapMode = "FlatFace"
sketch12.addGeometry(Part.Circle(V(42.8, -40, 0), V(0, 0, 1), 1.6), False)
sketch12.addGeometry(Part.Circle(V(42.8, 40, 0), V(0, 0, 1), 1.6), False)
sketch12.addGeometry(Part.Circle(V(-42.8, 37.5, 0), V(0, 0, 1), 1.6), False)
sketch12.addGeometry(Part.Circle(V(-42.8, -36.2, 0), V(0, 0, 1), 1.6), False)
sketch12.addConstraint(Sketcher.Constraint("Equal", 0, 1))
sketch12.addConstraint(Sketcher.Constraint("Equal", 1, 2))
sketch12.addConstraint(Sketcher.Constraint("Equal", 2, 3))
sketch12.addConstraint(Sketcher.Constraint("Symmetric", 0, 3, 1, 3, -1))
sketch12.addConstraint(Sketcher.Constraint("Vertical", 2, 3, 3, 3))
sketch12.addConstraint(Sketcher.Constraint("Diameter", 0, Q("3.2 mm")))
sketch12.addConstraint(Sketcher.Constraint("DistanceY", 0, 3, 1, 3, Q("80.01 mm")))
sketch12.addConstraint(Sketcher.Constraint("DistanceX", 2, 3, 1, 3, Q("85.69 mm")))
sketch12.addConstraint(Sketcher.Constraint("DistanceY", 2, 3, 1, 3, Q("2.55 mm")))
sketch12.addConstraint(Sketcher.Constraint("DistanceY", 3, 3, 2, 3, Q("73.64 mm")))
sketch12.addConstraint(Sketcher.Constraint("DistanceX", -1, 1, 0, 3, Q("42.845 mm")))
pocket1 = body.newObject("PartDesign::Pocket", "Pocket")
pocket1.Profile = sketch12
pocket1.Type = "ThroughAll"
pocket1.Reversed = True

doc.recompute()
